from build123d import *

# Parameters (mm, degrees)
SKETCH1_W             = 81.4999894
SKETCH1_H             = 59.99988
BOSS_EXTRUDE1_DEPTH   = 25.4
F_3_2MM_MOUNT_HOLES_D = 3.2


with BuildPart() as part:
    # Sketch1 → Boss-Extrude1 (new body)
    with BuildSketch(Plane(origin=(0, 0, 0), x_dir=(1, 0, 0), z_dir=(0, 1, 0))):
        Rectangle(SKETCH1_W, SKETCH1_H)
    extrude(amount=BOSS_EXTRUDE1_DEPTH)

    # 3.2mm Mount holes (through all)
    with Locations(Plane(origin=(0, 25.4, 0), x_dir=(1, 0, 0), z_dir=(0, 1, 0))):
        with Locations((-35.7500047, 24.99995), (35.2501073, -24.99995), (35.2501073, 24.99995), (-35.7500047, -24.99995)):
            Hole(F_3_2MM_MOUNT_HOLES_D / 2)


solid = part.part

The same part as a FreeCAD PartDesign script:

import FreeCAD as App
import Part
import Sketcher
from FreeCAD import Vector


def add_polygon(sketch, points):
    """Adds a closed chain of lines whose ends are joined by coincident constraints."""
    first, n = sketch.GeometryCount, len(points)
    for a, b in zip(points, points[1:] + points[:1]):
        sketch.addGeometry(Part.LineSegment(App.Vector(*a, 0), App.Vector(*b, 0)), False)
    for i in range(n):
        sketch.addConstraint(Sketcher.Constraint("Coincident", first + i, 2, first + (i + 1) % n, 1))

doc = App.newDocument("Part")
body = doc.addObject("PartDesign::Body", "Body")

# Sketch on XZ plane
sketch1 = doc.addObject("Sketcher::SketchObject", "Sketch")
body.addObject(sketch1)
sketch1.AttachmentSupport = (doc.XZ_Plane, [""])
sketch1.MapMode = "FlatFace"
add_polygon(sketch1, [(-40.749995, -29.99994), (-40.749995, 29.99994), (40.749995, 29.99994), (40.749995, -29.99994)])  # lines 0-3
sketch1.addConstraint([
    Sketcher.Constraint("Vertical", 0),
    Sketcher.Constraint("Horizontal", 1),
    Sketcher.Constraint("Vertical", 2),
    Sketcher.Constraint("Horizontal", 3),
    Sketcher.Constraint("Symmetric", 0, 2, 2, 2, -1, 1),
    Sketcher.Constraint("DistanceX", 1, 1, 1, 2, 81.499989),
    Sketcher.Constraint("DistanceY", 0, 1, 0, 2, 59.99988),
])
pad1 = doc.addObject("PartDesign::Pad", "Pad")
body.addObject(pad1)
pad1.Profile = sketch1
pad1.Length = 25.4
pad1.Reversed = True

# Sketch on XZ plane
sketch2 = doc.addObject("Sketcher::SketchObject", "Sketch001")
body.addObject(sketch2)
sketch2.AttachmentSupport = (doc.XZ_Plane, [""])
sketch2.MapMode = "FlatFace"
sketch2.AttachmentOffset = App.Placement(Vector(0, 0, -25.4), App.Rotation())
sketch2.addGeometry([
    Part.Circle(Vector(-35.750005, -24.99995, 0), Vector(0, 0, 1), 1.6),
    Part.Circle(Vector(35.250107, 24.99995, 0), Vector(0, 0, 1), 1.6),
    Part.Circle(Vector(35.250107, -24.99995, 0), Vector(0, 0, 1), 1.6),
    Part.Circle(Vector(-35.750005, 24.99995, 0), Vector(0, 0, 1), 1.6),
], False)
sketch2.addConstraint([
    Sketcher.Constraint("Equal", 0, 1),
    Sketcher.Constraint("Equal", 1, 2),
    Sketcher.Constraint("Equal", 2, 3),
    Sketcher.Constraint("Symmetric", 1, 3, 2, 3, -1),
    Sketcher.Constraint("Symmetric", 0, 3, 3, 3, -1),
    Sketcher.Constraint("Horizontal", 0, 3, 2, 3),
    Sketcher.Constraint("Diameter", 0, 3.2),
    Sketcher.Constraint("DistanceY", 0, 3, 1, 3, 49.9999),
    Sketcher.Constraint("DistanceX", 0, 3, 1, 3, 71.000112),
    Sketcher.Constraint("DistanceX", 0, 3, -1, 1, 35.750005),
])
doc.recompute()
hole = doc.addObject("PartDesign::Hole", "Hole")
body.addObject(hole)
hole.Profile = sketch2
hole.ThreadType = "None"
hole.Diameter = 3.2
hole.DepthType = "ThroughAll"
hole.Reversed = True

doc.recompute()
